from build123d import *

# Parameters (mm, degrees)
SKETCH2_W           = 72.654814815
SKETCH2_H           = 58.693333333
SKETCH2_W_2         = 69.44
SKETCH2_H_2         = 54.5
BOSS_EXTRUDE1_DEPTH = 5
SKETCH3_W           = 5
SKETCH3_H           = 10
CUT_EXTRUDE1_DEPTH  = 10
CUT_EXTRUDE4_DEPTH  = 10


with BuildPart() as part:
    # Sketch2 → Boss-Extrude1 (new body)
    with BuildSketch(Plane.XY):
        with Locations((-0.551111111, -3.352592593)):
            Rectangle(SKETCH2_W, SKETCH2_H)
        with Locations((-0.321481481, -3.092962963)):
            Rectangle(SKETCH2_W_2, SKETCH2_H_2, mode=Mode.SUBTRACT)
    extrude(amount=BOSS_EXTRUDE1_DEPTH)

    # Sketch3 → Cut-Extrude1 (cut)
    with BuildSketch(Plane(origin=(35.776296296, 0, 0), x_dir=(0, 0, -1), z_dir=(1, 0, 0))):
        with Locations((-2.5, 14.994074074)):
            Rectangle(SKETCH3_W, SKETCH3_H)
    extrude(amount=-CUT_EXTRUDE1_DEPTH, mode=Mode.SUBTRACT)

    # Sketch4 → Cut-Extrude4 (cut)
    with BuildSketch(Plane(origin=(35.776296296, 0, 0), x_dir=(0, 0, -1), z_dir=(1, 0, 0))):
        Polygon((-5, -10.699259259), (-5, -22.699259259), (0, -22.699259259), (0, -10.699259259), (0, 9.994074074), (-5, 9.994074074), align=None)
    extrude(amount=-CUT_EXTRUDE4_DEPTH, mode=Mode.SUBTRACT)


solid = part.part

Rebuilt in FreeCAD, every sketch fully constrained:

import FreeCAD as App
import Part
import Sketcher
from FreeCAD import Vector
Q = App.Units.Quantity


def add_polygon(sketch, points):
    """Adds a closed chain of lines whose ends are joined by coincident constraints."""
    first, n = sketch.GeometryCount, len(points)
    for a, b in zip(points, points[1:] + points[:1]):
        sketch.addGeometry(Part.LineSegment(App.Vector(*a, 0), App.Vector(*b, 0)), False)
    for i in range(n):
        sketch.addConstraint(Sketcher.Constraint("Coincident", first + i, 2, first + (i + 1) % n, 1))

doc = App.newDocument("Part")
body = doc.addObject("PartDesign::Body", "Body")

sketch1 = doc.addObject("Sketcher::SketchObject", "Sketch")
body.addObject(sketch1)
sketch1.AttachmentSupport = (doc.XY_Plane, [""])
sketch1.MapMode = "FlatFace"
add_polygon(sketch1, [(-36.878519, 25.994074), (-36.878519, -32.699259), (35.776296, -32.699259), (35.776296, 25.994074)])
add_polygon(sketch1, [(34.398519, -30.342963), (-35.041481, -30.342963), (-35.041481, 24.157037), (34.398519, 24.157037)])
sketch1.addConstraint(Sketcher.Constraint("Vertical", 0))
sketch1.addConstraint(Sketcher.Constraint("Horizontal", 1))
sketch1.addConstraint(Sketcher.Constraint("Vertical", 2))
sketch1.addConstraint(Sketcher.Constraint("Horizontal", 3))
sketch1.addConstraint(Sketcher.Constraint("Horizontal", 4))
sketch1.addConstraint(Sketcher.Constraint("Vertical", 5))
sketch1.addConstraint(Sketcher.Constraint("Horizontal", 6))
sketch1.addConstraint(Sketcher.Constraint("Vertical", 7))
sketch1.addConstraint(Sketcher.Constraint("DistanceY", 5, 1, 5, 2, Q("54.5 mm")))
sketch1.addConstraint(Sketcher.Constraint("DistanceX", 4, 2, 4, 1, Q("69.44 mm")))
sketch1.addConstraint(Sketcher.Constraint("DistanceX", 1, 1, 1, 2, Q("72.654815 mm")))
sketch1.addConstraint(Sketcher.Constraint("DistanceY", 0, 2, 0, 1, Q("58.693333 mm")))
sketch1.addConstraint(Sketcher.Constraint("DistanceX", 0, 2, -1, 1, Q("36.878519 mm")))
sketch1.addConstraint(Sketcher.Constraint("DistanceY", 0, 2, -1, 1, Q("32.699259 mm")))
sketch1.addConstraint(Sketcher.Constraint("DistanceX", 4, 2, -1, 1, Q("35.041481 mm")))
sketch1.addConstraint(Sketcher.Constraint("DistanceY", 4, 2, -1, 1, Q("30.342963 mm")))
pad1 = doc.addObject("PartDesign::Pad", "Pad")
body.addObject(pad1)
pad1.Profile = sketch1
pad1.Length = 5

sketch2 = doc.addObject("Sketcher::SketchObject", "Sketch001")
body.addObject(sketch2)
sketch2.AttachmentSupport = (doc.YZ_Plane, [""])
sketch2.MapMode = "FlatFace"
sketch2.AttachmentOffset = App.Placement(Vector(0, 0, 35.776296), App.Rotation())
add_polygon(sketch2, [(19.994074, 5), (9.994074, 5), (9.994074, 0), (19.994074, 0)])
sketch2.addConstraint(Sketcher.Constraint("Horizontal", 0))
sketch2.addConstraint(Sketcher.Constraint("Vertical", 1))
sketch2.addConstraint(Sketcher.Constraint("Horizontal", 2))
sketch2.addConstraint(Sketcher.Constraint("Vertical", 3))
sketch2.addConstraint(Sketcher.Constraint("PointOnObject", 1, 2, -1))
sketch2.addConstraint(Sketcher.Constraint("DistanceX", 0, 2, 0, 1, Q("10 mm")))
sketch2.addConstraint(Sketcher.Constraint("DistanceY", 1, 2, 1, 1, Q("5 mm")))
sketch2.addConstraint(Sketcher.Constraint("DistanceX", -1, 1, 0, 2, Q("9.994074 mm")))
pocket1 = doc.addObject("PartDesign::Pocket", "Pocket")
body.addObject(pocket1)
pocket1.Profile = sketch2
pocket1.Length = 10

sketch3 = doc.addObject("Sketcher::SketchObject", "Sketch002")
body.addObject(sketch3)
sketch3.AttachmentSupport = (doc.YZ_Plane, [""])
sketch3.MapMode = "FlatFace"
sketch3.AttachmentOffset = App.Placement(Vector(0, 0, 35.776296), App.Rotation())
add_polygon(sketch3, [(-22.699259, 5), (-22.699259, 0), (9.994074, 0), (9.994074, 5)])
sketch3.addConstraint(Sketcher.Constraint("Vertical", 0))
sketch3.addConstraint(Sketcher.Constraint("Horizontal", 1))
sketch3.addConstraint(Sketcher.Constraint("Vertical", 2))
sketch3.addConstraint(Sketcher.Constraint("Horizontal", 3))
sketch3.addConstraint(Sketcher.Constraint("PointOnObject", 0, 2, -1))
sketch3.addConstraint(Sketcher.Constraint("DistanceY", 0, 2, 0, 1, Q("5 mm")))
sketch3.addConstraint(Sketcher.Constraint("DistanceX", 1, 1, 1, 2, Q("32.693333 mm")))
sketch3.addConstraint(Sketcher.Constraint("DistanceX", 0, 2, -1, 1, Q("22.699259 mm")))
pocket2 = doc.addObject("PartDesign::Pocket", "Pocket001")
body.addObject(pocket2)
pocket2.Profile = sketch3
pocket2.Length = 10

doc.recompute()
